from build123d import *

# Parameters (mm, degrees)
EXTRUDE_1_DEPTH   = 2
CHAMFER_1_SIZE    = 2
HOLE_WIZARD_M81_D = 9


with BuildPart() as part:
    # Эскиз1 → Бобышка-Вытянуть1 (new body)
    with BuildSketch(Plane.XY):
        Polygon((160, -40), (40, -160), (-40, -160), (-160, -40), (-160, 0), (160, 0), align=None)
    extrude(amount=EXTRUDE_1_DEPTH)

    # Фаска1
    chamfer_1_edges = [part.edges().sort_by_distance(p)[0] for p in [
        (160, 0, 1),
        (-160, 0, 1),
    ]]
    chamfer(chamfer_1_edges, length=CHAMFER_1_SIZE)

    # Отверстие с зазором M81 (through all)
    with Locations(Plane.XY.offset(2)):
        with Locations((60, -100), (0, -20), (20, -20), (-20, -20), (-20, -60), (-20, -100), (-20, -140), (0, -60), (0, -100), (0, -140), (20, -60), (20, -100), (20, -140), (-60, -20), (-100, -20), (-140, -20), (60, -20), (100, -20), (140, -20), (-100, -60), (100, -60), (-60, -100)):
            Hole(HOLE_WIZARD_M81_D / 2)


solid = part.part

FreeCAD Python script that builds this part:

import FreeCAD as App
import Part
import Sketcher

V = App.Vector


def edges_at(feature, points):
    """Names of the edges that pass closest to the given points."""
    edges = feature.Shape.Edges
    near = lambda p: min(range(len(edges)), key=lambda i: edges[i].distToShape(Part.Vertex(*p))[0])
    return sorted({f"Edge{near(p) + 1}" for p in points})


def add_polygon(sketch, points):
    """Adds a closed chain of lines whose ends are joined by coincident constraints."""
    first, n = sketch.GeometryCount, len(points)
    for a, b in zip(points, points[1:] + points[:1]):
        sketch.addGeometry(Part.LineSegment(App.Vector(*a, 0), App.Vector(*b, 0)), False)
    for i in range(n):
        sketch.addConstraint(Sketcher.Constraint("Coincident", first + i, 2, first + (i + 1) % n, 1))

doc = App.newDocument("Part")
params = doc.addObject("Spreadsheet::Sheet", "Params")
for row, (alias, value) in enumerate([
    ("sketch1_width", "320 mm"),
    ("sketch1_width2", "80 mm"),
    ("sketch1_height", "40 mm"),
    ("pad1_length", "2 mm"),
    ("chamfer_size", "2 mm"),
    ("sketch2_diameter", "9 mm"),
    ("hole_diameter", "9 mm"),
], start=1):
    params.set(f"A{row}", alias)
    params.set(f"B{row}", "=" + value)
    params.setAlias(f"B{row}", alias)

body = doc.addObject("PartDesign::Body", "Body")

sketch1 = body.newObject("Sketcher::SketchObject", "Sketch")
sketch1.AttachmentSupport = (doc.getObject("XY_Plane"), [""])
sketch1.MapMode = "FlatFace"
add_polygon(sketch1, [(40, -160), (160, -40), (160, 0), (-160, 0), (-160, -40), (-40, -160)])
sketch1.addConstraint(Sketcher.Constraint("Vertical", 1))
sketch1.addConstraint(Sketcher.Constraint("Horizontal", 2))
sketch1.addConstraint(Sketcher.Constraint("Vertical", 3))
sketch1.addConstraint(Sketcher.Constraint("Horizontal", 5))
sketch1.addConstraint(Sketcher.Constraint("Symmetric", 1, 2, 2, 2, -1, 1))
sketch1.addConstraint(Sketcher.Constraint("Perpendicular", 0, 4))
sketch1.addConstraint(Sketcher.Constraint("Horizontal", 0, 2, 3, 2))
sketch1.addConstraint(Sketcher.Constraint("Equal", 0, 4))
sketch1.addConstraint(Sketcher.Constraint("DistanceX", 2, 2, 2, 1, 320.0))
sketch1.addConstraint(Sketcher.Constraint("DistanceX", 5, 1, 5, 2, 80.0))
sketch1.addConstraint(Sketcher.Constraint("DistanceY", 1, 1, 1, 2, 40.0))
sketch1.setExpression("Constraints[14]", "Params.sketch1_width")
sketch1.setExpression("Constraints[15]", "Params.sketch1_width2")
sketch1.setExpression("Constraints[16]", "Params.sketch1_height")
pad1 = body.newObject("PartDesign::Pad", "Pad")
pad1.Profile = sketch1
pad1.setExpression("Length", "Params.pad1_length")
doc.recompute()

chamfer = body.newObject("PartDesign::Chamfer", "Chamfer")
chamfer.Base = (pad1, edges_at(pad1, [(160, 0, 1), (-160, 0, 1)]))
chamfer.setExpression("Size", "Params.chamfer_size")

sketch2 = body.newObject("Sketcher::SketchObject", "Sketch001")
sketch2.AttachmentSupport = (doc.getObject("XY_Plane"), [""])
sketch2.MapMode = "FlatFace"
sketch2.AttachmentOffset = App.Placement(V(0, 0, 2), App.Rotation())
sketch2.addGeometry(Part.Circle(V(60, -100, 0), V(0, 0, 1), 4.5), False)
sketch2.addGeometry(Part.Circle(V(0, -20, 0), V(0, 0, 1), 4.5), False)
sketch2.addGeometry(Part.Circle(V(20, -20, 0), V(0, 0, 1), 4.5), False)
sketch2.addGeometry(Part.Circle(V(-20, -20, 0), V(0, 0, 1), 4.5), False)
sketch2.addGeometry(Part.Circle(V(-20, -60, 0), V(0, 0, 1), 4.5), False)
sketch2.addGeometry(Part.Circle(V(-20, -100, 0), V(0, 0, 1), 4.5), False)
sketch2.addGeometry(Part.Circle(V(-20, -140, 0), V(0, 0, 1), 4.5), False)
sketch2.addGeometry(Part.Circle(V(0, -60, 0), V(0, 0, 1), 4.5), False)
sketch2.addGeometry(Part.Circle(V(0, -100, 0), V(0, 0, 1), 4.5), False)
sketch2.addGeometry(Part.Circle(V(0, -140, 0), V(0, 0, 1), 4.5), False)
sketch2.addGeometry(Part.Circle(V(20, -60, 0), V(0, 0, 1), 4.5), False)
sketch2.addGeometry(Part.Circle(V(20, -100, 0), V(0, 0, 1), 4.5), False)
sketch2.addGeometry(Part.Circle(V(20, -140, 0), V(0, 0, 1), 4.5), False)
sketch2.addGeometry(Part.Circle(V(-60, -20, 0), V(0, 0, 1), 4.5), False)
sketch2.addGeometry(Part.Circle(V(-100, -20, 0), V(0, 0, 1), 4.5), False)
sketch2.addGeometry(Part.Circle(V(-140, -20, 0), V(0, 0, 1), 4.5), False)
sketch2.addGeometry(Part.Circle(V(60, -20, 0), V(0, 0, 1), 4.5), False)
sketch2.addGeometry(Part.Circle(V(100, -20, 0), V(0, 0, 1), 4.5), False)
sketch2.addGeometry(Part.Circle(V(140, -20, 0), V(0, 0, 1), 4.5), False)
sketch2.addGeometry(Part.Circle(V(-100, -60, 0), V(0, 0, 1), 4.5), False)
sketch2.addGeometry(Part.Circle(V(100, -60, 0), V(0, 0, 1), 4.5), False)
sketch2.addGeometry(Part.Circle(V(-60, -100, 0), V(0, 0, 1), 4.5), False)
sketch2.addConstraint(Sketcher.Constraint("Equal", 0, 1))
sketch2.addConstraint(Sketcher.Constraint("Equal", 1, 2))
sketch2.addConstraint(Sketcher.Constraint("Equal", 2, 3))
sketch2.addConstraint(Sketcher.Constraint("Equal", 3, 4))
sketch2.addConstraint(Sketcher.Constraint("Equal", 4, 5))
sketch2.addConstraint(Sketcher.Constraint("Equal", 5, 6))
sketch2.addConstraint(Sketcher.Constraint("Equal", 6, 7))
sketch2.addConstraint(Sketcher.Constraint("Equal", 7, 8))
sketch2.addConstraint(Sketcher.Constraint("Equal", 8, 9))
sketch2.addConstraint(Sketcher.Constraint("Equal", 9, 10))
sketch2.addConstraint(Sketcher.Constraint("Equal", 10, 11))
sketch2.addConstraint(Sketcher.Constraint("Equal", 11, 12))
sketch2.addConstraint(Sketcher.Constraint("Equal", 12, 13))
sketch2.addConstraint(Sketcher.Constraint("Equal", 13, 14))
sketch2.addConstraint(Sketcher.Constraint("Equal", 14, 15))
sketch2.addConstraint(Sketcher.Constraint("Equal", 15, 16))
sketch2.addConstraint(Sketcher.Constraint("Equal", 16, 17))
sketch2.addConstraint(Sketcher.Constraint("Equal", 17, 18))
sketch2.addConstraint(Sketcher.Constraint("Equal", 18, 19))
sketch2.addConstraint(Sketcher.Constraint("Equal", 19, 20))
sketch2.addConstraint(Sketcher.Constraint("Equal", 20, 21))
sketch2.addConstraint(Sketcher.Constraint("Symmetric", 2, 3, 3, 3, -2))
sketch2.addConstraint(Sketcher.Constraint("Symmetric", 4, 3, 10, 3, -2))
sketch2.addConstraint(Sketcher.Constraint("Symmetric", 5, 3, 11, 3, -2))
sketch2.addConstraint(Sketcher.Constraint("Symmetric", 6, 3, 12, 3, -2))
sketch2.addConstraint(Sketcher.Constraint("Symmetric", 13, 3, 16, 3, -2))
sketch2.addConstraint(Sketcher.Constraint("Symmetric", 14, 3, 17, 3, -2))
sketch2.addConstraint(Sketcher.Constraint("Symmetric", 15, 3, 18, 3, -2))
sketch2.addConstraint(Sketcher.Constraint("Symmetric", 19, 3, 20, 3, -2))
sketch2.addConstraint(Sketcher.Constraint("Symmetric", 0, 3, 21, 3, -2))
sketch2.addConstraint(Sketcher.Constraint("PointOnObject", 1, 3, -2))
sketch2.addConstraint(Sketcher.Constraint("PointOnObject", 7, 3, -2))
sketch2.addConstraint(Sketcher.Constraint("PointOnObject", 8, 3, -2))
sketch2.addConstraint(Sketcher.Constraint("PointOnObject", 9, 3, -2))
sketch2.addConstraint(Sketcher.Constraint("Horizontal", 1, 3, 2, 3))
sketch2.addConstraint(Sketcher.Constraint("Horizontal", 0, 3, 5, 3))
sketch2.addConstraint(Sketcher.Constraint("Horizontal", 4, 3, 7, 3))
sketch2.addConstraint(Sketcher.Constraint("Horizontal", 5, 3, 8, 3))
sketch2.addConstraint(Sketcher.Constraint("Horizontal", 6, 3, 9, 3))
sketch2.addConstraint(Sketcher.Constraint("Horizontal", 3, 3, 13, 3))
sketch2.addConstraint(Sketcher.Constraint("Horizontal", 13, 3, 14, 3))
sketch2.addConstraint(Sketcher.Constraint("Horizontal", 14, 3, 15, 3))
sketch2.addConstraint(Sketcher.Constraint("Horizontal", 10, 3, 19, 3))
sketch2.addConstraint(Sketcher.Constraint("Vertical", 3, 3, 4, 3))
sketch2.addConstraint(Sketcher.Constraint("Vertical", 4, 3, 5, 3))
sketch2.addConstraint(Sketcher.Constraint("Vertical", 5, 3, 6, 3))
sketch2.addConstraint(Sketcher.Constraint("Vertical", 0, 3, 16, 3))
sketch2.addConstraint(Sketcher.Constraint("Vertical", 14, 3, 19, 3))
sketch2.addConstraint(Sketcher.Constraint("Diameter", 0, 9.0))
sketch2.addConstraint(Sketcher.Constraint("DistanceX", -1, 1, 0, 3, 60.0))
sketch2.addConstraint(Sketcher.Constraint("DistanceY", 0, 3, -1, 1, 100.0))
sketch2.addConstraint(Sketcher.Constraint("DistanceY", 1, 3, -1, 1, 20.0))
sketch2.addConstraint(Sketcher.Constraint("DistanceX", -1, 1, 2, 3, 20.0))
sketch2.addConstraint(Sketcher.Constraint("DistanceY", 4, 3, -1, 1, 60.0))
sketch2.addConstraint(Sketcher.Constraint("DistanceY", 6, 3, -1, 1, 140.0))
sketch2.addConstraint(Sketcher.Constraint("DistanceX", 14, 3, -1, 1, 100.0))
sketch2.addConstraint(Sketcher.Constraint("DistanceX", 15, 3, -1, 1, 140.0))
sketch2.setExpression("Constraints[48]", "Params.sketch2_diameter")
doc.recompute()
hole = body.newObject("PartDesign::Hole", "Hole")
hole.Profile = sketch2
hole.ThreadType = "None"
hole.setExpression("Diameter", "Params.hole_diameter")
hole.DepthType = "ThroughAll"

doc.recompute()
